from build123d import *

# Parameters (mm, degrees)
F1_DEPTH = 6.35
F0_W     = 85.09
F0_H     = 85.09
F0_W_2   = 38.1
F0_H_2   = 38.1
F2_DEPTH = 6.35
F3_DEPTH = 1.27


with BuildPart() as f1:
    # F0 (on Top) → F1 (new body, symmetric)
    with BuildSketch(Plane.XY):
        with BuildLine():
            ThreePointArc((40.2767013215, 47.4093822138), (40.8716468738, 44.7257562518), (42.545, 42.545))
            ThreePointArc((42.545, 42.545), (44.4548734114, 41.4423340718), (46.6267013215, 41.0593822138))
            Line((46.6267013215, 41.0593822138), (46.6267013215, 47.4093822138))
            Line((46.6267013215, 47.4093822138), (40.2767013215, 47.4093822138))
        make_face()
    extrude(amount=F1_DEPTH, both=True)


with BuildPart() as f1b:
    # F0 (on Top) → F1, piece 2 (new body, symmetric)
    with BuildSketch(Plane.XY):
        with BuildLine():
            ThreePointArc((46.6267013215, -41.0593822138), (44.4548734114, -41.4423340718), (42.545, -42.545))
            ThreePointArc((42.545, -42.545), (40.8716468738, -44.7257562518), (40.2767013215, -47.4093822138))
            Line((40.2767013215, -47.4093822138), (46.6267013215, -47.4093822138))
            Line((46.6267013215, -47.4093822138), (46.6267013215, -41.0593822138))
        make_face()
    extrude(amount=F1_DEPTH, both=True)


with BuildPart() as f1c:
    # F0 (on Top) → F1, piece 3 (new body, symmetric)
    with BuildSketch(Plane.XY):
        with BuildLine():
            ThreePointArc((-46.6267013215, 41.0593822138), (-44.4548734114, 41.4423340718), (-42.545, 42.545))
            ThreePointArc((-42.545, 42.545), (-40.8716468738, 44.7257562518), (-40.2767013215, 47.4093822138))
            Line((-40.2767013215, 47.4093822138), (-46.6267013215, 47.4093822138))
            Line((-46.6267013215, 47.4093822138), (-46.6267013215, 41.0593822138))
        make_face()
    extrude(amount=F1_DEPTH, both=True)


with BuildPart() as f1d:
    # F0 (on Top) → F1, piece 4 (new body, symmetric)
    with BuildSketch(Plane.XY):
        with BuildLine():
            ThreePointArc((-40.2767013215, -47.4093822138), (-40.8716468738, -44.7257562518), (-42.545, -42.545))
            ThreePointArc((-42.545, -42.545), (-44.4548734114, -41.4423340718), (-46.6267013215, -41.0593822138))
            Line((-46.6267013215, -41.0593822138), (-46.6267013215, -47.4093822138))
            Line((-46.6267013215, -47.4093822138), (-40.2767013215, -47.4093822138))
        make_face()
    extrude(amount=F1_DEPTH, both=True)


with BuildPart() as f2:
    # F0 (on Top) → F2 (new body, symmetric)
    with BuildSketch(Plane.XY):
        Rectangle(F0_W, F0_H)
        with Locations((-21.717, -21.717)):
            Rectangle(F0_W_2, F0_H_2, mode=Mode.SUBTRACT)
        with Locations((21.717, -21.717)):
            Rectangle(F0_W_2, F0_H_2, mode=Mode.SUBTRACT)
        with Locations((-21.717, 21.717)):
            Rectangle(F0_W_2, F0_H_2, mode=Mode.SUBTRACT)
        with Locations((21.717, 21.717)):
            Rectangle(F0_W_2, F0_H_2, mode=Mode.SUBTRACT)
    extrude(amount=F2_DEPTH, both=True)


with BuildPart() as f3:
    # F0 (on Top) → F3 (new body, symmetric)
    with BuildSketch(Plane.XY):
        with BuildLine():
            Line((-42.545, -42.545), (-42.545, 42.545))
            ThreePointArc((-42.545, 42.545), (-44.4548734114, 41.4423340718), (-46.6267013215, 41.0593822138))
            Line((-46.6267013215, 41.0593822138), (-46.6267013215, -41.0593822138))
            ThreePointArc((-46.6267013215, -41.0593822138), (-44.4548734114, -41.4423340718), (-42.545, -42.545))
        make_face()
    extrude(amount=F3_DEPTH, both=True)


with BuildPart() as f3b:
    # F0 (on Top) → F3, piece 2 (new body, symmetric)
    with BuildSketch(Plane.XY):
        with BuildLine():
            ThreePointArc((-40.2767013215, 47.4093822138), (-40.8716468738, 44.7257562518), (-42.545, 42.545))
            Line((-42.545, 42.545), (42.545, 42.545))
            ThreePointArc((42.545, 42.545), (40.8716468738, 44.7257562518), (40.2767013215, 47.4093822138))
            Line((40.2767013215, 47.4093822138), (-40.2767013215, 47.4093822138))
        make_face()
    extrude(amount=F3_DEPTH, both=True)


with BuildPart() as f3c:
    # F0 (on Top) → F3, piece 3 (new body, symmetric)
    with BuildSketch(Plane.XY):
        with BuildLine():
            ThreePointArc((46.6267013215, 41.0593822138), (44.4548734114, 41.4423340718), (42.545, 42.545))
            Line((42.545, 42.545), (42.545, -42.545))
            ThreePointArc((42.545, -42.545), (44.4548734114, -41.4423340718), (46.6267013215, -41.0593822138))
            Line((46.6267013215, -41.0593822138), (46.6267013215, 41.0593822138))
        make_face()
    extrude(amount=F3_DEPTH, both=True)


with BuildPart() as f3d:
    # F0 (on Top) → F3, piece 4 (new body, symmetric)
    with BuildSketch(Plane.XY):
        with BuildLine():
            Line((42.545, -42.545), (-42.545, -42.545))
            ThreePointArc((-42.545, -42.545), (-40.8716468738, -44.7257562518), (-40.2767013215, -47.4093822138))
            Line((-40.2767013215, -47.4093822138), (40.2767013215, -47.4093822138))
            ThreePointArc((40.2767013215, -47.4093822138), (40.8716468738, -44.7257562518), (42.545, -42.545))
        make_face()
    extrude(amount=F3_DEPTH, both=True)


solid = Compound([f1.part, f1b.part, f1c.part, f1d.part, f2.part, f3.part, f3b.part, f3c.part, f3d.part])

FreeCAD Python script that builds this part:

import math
import FreeCAD as App
import Part
import Sketcher
from FreeCAD import Vector
Q = App.Units.Quantity


def add_polygon(sketch, points):
    """Adds a closed chain of lines whose ends are joined by coincident constraints."""
    first, n = sketch.GeometryCount, len(points)
    for a, b in zip(points, points[1:] + points[:1]):
        sketch.addGeometry(Part.LineSegment(App.Vector(*a, 0), App.Vector(*b, 0)), False)
    for i in range(n):
        sketch.addConstraint(Sketcher.Constraint("Coincident", first + i, 2, first + (i + 1) % n, 1))

doc = App.newDocument("Part")
body = doc.addObject("PartDesign::Body", "Body")

sketch1 = doc.addObject("Sketcher::SketchObject", "Sketch")
body.addObject(sketch1)
sketch1.AttachmentSupport = (doc.XY_Plane, [""])
sketch1.MapMode = "FlatFace"
sketch1.addGeometry([
    Part.ArcOfCircle(Part.Circle(Vector(46.626701, 47.409382, 0), Vector(0, 0, 1), 6.35), math.radians(180), math.radians(230)),
    Part.ArcOfCircle(Part.Circle(Vector(46.626701, 47.409382, 0), Vector(0, 0, 1), 6.35), math.radians(-130), math.radians(-90)),
    Part.LineSegment(Vector(46.626701, 41.059382, 0), Vector(46.626701, 47.409382, 0)),
    Part.LineSegment(Vector(46.626701, 47.409382, 0), Vector(40.276701, 47.409382, 0)),
], False)
sketch1.addConstraint([
    Sketcher.Constraint("Tangent", 0, 2, 1, 1),
    Sketcher.Constraint("Coincident", 1, 2, 2, 1),
    Sketcher.Constraint("Coincident", 2, 2, 3, 1),
    Sketcher.Constraint("Coincident", 3, 2, 0, 1),
    Sketcher.Constraint("Vertical", 2),
    Sketcher.Constraint("Horizontal", 3),
    Sketcher.Constraint("Coincident", 2, 2, 0, 3),
    Sketcher.Constraint("Equal", 0, 1),
    Sketcher.Constraint("Radius", 0, Q("0.25 in")),
    Sketcher.Constraint("DistanceX", -1, 1, 0, 2, Q("1.675 in")),
    Sketcher.Constraint("DistanceY", -1, 1, 0, 2, Q("1.675 in")),
    Sketcher.Constraint("DistanceX", -1, 1, 0, 3, Q("46.626701 mm")),
])
pad1 = doc.addObject("PartDesign::Pad", "Pad")
body.addObject(pad1)
pad1.Profile = sketch1
pad1.Length = Q("0.5 in")
pad1.Midplane = True
body2 = doc.addObject("PartDesign::Body", "Body001")

sketch2 = doc.addObject("Sketcher::SketchObject", "Sketch001")
body2.addObject(sketch2)
sketch2.AttachmentSupport = (doc.getObject("XY_Plane001"), [""])
sketch2.MapMode = "FlatFace"
sketch2.addGeometry([
    Part.ArcOfCircle(Part.Circle(Vector(46.626701, -47.409382, 0), Vector(0, 0, 1), 6.35), math.radians(90), math.radians(130)),
    Part.ArcOfCircle(Part.Circle(Vector(46.626701, -47.409382, 0), Vector(0, 0, 1), 6.35), math.radians(130), math.radians(180)),
    Part.LineSegment(Vector(40.276701, -47.409382, 0), Vector(46.626701, -47.409382, 0)),
    Part.LineSegment(Vector(46.626701, -47.409382, 0), Vector(46.626701, -41.059382, 0)),
], False)
sketch2.addConstraint([
    Sketcher.Constraint("Tangent", 0, 2, 1, 1),
    Sketcher.Constraint("Coincident", 1, 2, 2, 1),
    Sketcher.Constraint("Coincident", 2, 2, 3, 1),
    Sketcher.Constraint("Coincident", 3, 2, 0, 1),
    Sketcher.Constraint("Horizontal", 2),
    Sketcher.Constraint("Vertical", 3),
    Sketcher.Constraint("Coincident", 2, 2, 0, 3),
    Sketcher.Constraint("Equal", 0, 1),
    Sketcher.Constraint("Radius", 0, Q("0.25 in")),
    Sketcher.Constraint("DistanceX", -1, 1, 0, 2, Q("1.675 in")),
    Sketcher.Constraint("DistanceY", 0, 2, -1, 1, Q("1.675 in")),
    Sketcher.Constraint("DistanceX", -1, 1, 0, 3, Q("46.626701 mm")),
])
pad2 = doc.addObject("PartDesign::Pad", "Pad001")
body2.addObject(pad2)
pad2.Profile = sketch2
pad2.Length = Q("0.5 in")
pad2.Midplane = True
body3 = doc.addObject("PartDesign::Body", "Body002")

sketch3 = doc.addObject("Sketcher::SketchObject", "Sketch002")
body3.addObject(sketch3)
sketch3.AttachmentSupport = (doc.getObject("XY_Plane002"), [""])
sketch3.MapMode = "FlatFace"
sketch3.addGeometry([
    Part.ArcOfCircle(Part.Circle(Vector(-46.626701, 47.409382, 0), Vector(0, 0, 1), 6.35), math.radians(-90), math.radians(-50)),
    Part.ArcOfCircle(Part.Circle(Vector(-46.626701, 47.409382, 0), Vector(0, 0, 1), 6.35), math.radians(-50), math.radians(0)),
    Part.LineSegment(Vector(-40.276701, 47.409382, 0), Vector(-46.626701, 47.409382, 0)),
    Part.LineSegment(Vector(-46.626701, 47.409382, 0), Vector(-46.626701, 41.059382, 0)),
], False)
sketch3.addConstraint([
    Sketcher.Constraint("Tangent", 0, 2, 1, 1),
    Sketcher.Constraint("Coincident", 1, 2, 2, 1),
    Sketcher.Constraint("Coincident", 2, 2, 3, 1),
    Sketcher.Constraint("Coincident", 3, 2, 0, 1),
    Sketcher.Constraint("Horizontal", 2),
    Sketcher.Constraint("Vertical", 3),
    Sketcher.Constraint("Coincident", 2, 2, 0, 3),
    Sketcher.Constraint("Equal", 0, 1),
    Sketcher.Constraint("Radius", 0, Q("0.25 in")),
    Sketcher.Constraint("DistanceX", 0, 2, -1, 1, Q("1.675 in")),
    Sketcher.Constraint("DistanceY", -1, 1, 0, 2, Q("1.675 in")),
    Sketcher.Constraint("DistanceX", 0, 3, -1, 1, Q("46.626701 mm")),
])
pad3 = doc.addObject("PartDesign::Pad", "Pad002")
body3.addObject(pad3)
pad3.Profile = sketch3
pad3.Length = Q("0.5 in")
pad3.Midplane = True
body4 = doc.addObject("PartDesign::Body", "Body003")

sketch4 = doc.addObject("Sketcher::SketchObject", "Sketch003")
body4.addObject(sketch4)
sketch4.AttachmentSupport = (doc.getObject("XY_Plane003"), [""])
sketch4.MapMode = "FlatFace"
sketch4.addGeometry([
    Part.ArcOfCircle(Part.Circle(Vector(-46.626701, -47.409382, 0), Vector(0, 0, 1), 6.35), math.radians(0), math.radians(50)),
    Part.ArcOfCircle(Part.Circle(Vector(-46.626701, -47.409382, 0), Vector(0, 0, 1), 6.35), math.radians(50), math.radians(90)),
    Part.LineSegment(Vector(-46.626701, -41.059382, 0), Vector(-46.626701, -47.409382, 0)),
    Part.LineSegment(Vector(-46.626701, -47.409382, 0), Vector(-40.276701, -47.409382, 0)),
], False)
sketch4.addConstraint([
    Sketcher.Constraint("Tangent", 0, 2, 1, 1),
    Sketcher.Constraint("Coincident", 1, 2, 2, 1),
    Sketcher.Constraint("Coincident", 2, 2, 3, 1),
    Sketcher.Constraint("Coincident", 3, 2, 0, 1),
    Sketcher.Constraint("Vertical", 2),
    Sketcher.Constraint("Horizontal", 3),
    Sketcher.Constraint("Coincident", 2, 2, 0, 3),
    Sketcher.Constraint("Equal", 0, 1),
    Sketcher.Constraint("Radius", 0, Q("0.25 in")),
    Sketcher.Constraint("DistanceX", 0, 2, -1, 1, Q("1.675 in")),
    Sketcher.Constraint("DistanceY", 0, 2, -1, 1, Q("1.675 in")),
    Sketcher.Constraint("DistanceX", 0, 3, -1, 1, Q("46.626701 mm")),
])
pad4 = doc.addObject("PartDesign::Pad", "Pad003")
body4.addObject(pad4)
pad4.Profile = sketch4
pad4.Length = Q("0.5 in")
pad4.Midplane = True
body5 = doc.addObject("PartDesign::Body", "Body004")

sketch5 = doc.addObject("Sketcher::SketchObject", "Sketch004")
body5.addObject(sketch5)
sketch5.AttachmentSupport = (doc.getObject("XY_Plane004"), [""])
sketch5.MapMode = "FlatFace"
add_polygon(sketch5, [(-42.545, 42.545), (-42.545, -42.545), (42.545, -42.545), (42.545, 42.545)])
add_polygon(sketch5, [(-2.667, -40.767), (-40.767, -40.767), (-40.767, -2.667), (-2.667, -2.667)])
add_polygon(sketch5, [(40.767, -40.767), (2.667, -40.767), (2.667, -2.667), (40.767, -2.667)])
add_polygon(sketch5, [(-2.667, 2.667), (-40.767, 2.667), (-40.767, 40.767), (-2.667, 40.767)])
add_polygon(sketch5, [(40.767, 2.667), (2.667, 2.667), (2.667, 40.767), (40.767, 40.767)])
sketch5.addConstraint([
    Sketcher.Constraint("Vertical", 0),
    Sketcher.Constraint("Horizontal", 1),
    Sketcher.Constraint("Vertical", 2),
    Sketcher.Constraint("Horizontal", 3),
    Sketcher.Constraint("Horizontal", 4),
    Sketcher.Constraint("Vertical", 5),
    Sketcher.Constraint("Horizontal", 6),
    Sketcher.Constraint("Vertical", 7),
    Sketcher.Constraint("Horizontal", 8),
    Sketcher.Constraint("Vertical", 9),
    Sketcher.Constraint("Horizontal", 10),
    Sketcher.Constraint("Vertical", 11),
    Sketcher.Constraint("Horizontal", 12),
    Sketcher.Constraint("Vertical", 13),
    Sketcher.Constraint("Horizontal", 14),
    Sketcher.Constraint("Vertical", 15),
    Sketcher.Constraint("Horizontal", 16),
    Sketcher.Constraint("Vertical", 17),
    Sketcher.Constraint("Horizontal", 18),
    Sketcher.Constraint("Vertical", 19),
    Sketcher.Constraint("Symmetric", 0, 2, 2, 2, -1, 1),
    Sketcher.Constraint("Symmetric", 10, 2, 12, 2, -1, 1),
    Sketcher.Constraint("Symmetric", 8, 2, 14, 2, -1, 1),
    Sketcher.Constraint("Symmetric", 6, 2, 16, 2, -1, 1),
    Sketcher.Constraint("Symmetric", 4, 2, 18, 2, -1, 1),
    Sketcher.Constraint("Symmetric", 7, 2, 8, 2, -2),
    Sketcher.Constraint("Symmetric", 5, 2, 10, 2, -2),
    Sketcher.Constraint("Equal", 3, 0),
    Sketcher.Constraint("Equal", 18, 5),
    Sketcher.Constraint("DistanceX", 4, 2, 4, 1, Q("1.5 in")),
    Sketcher.Constraint("DistanceX", 1, 1, 1, 2, Q("3.35 in")),
    Sketcher.Constraint("DistanceX", 0, 2, 4, 2, Q("0.07 in")),
    Sketcher.Constraint("DistanceY", 0, 2, 4, 2, Q("0.07 in")),
])
pad5 = doc.addObject("PartDesign::Pad", "Pad004")
body5.addObject(pad5)
pad5.Profile = sketch5
pad5.Length = Q("0.5 in")
pad5.Midplane = True
body6 = doc.addObject("PartDesign::Body", "Body005")

sketch6 = doc.addObject("Sketcher::SketchObject", "Sketch005")
body6.addObject(sketch6)
sketch6.AttachmentSupport = (doc.getObject("XY_Plane005"), [""])
sketch6.MapMode = "FlatFace"
sketch6.addGeometry([
    Part.LineSegment(Vector(-42.545, -42.545, 0), Vector(-42.545, 42.545, 0)),
    Part.ArcOfCircle(Part.Circle(Vector(-46.626701, 47.409382, 0), Vector(0, 0, 1), 6.35), math.radians(-90), math.radians(-50)),
    Part.LineSegment(Vector(-46.626701, 41.059382, 0), Vector(-46.626701, -41.059382, 0)),
    Part.ArcOfCircle(Part.Circle(Vector(-46.626701, -47.409382, 0), Vector(0, 0, 1), 6.35), math.radians(50), math.radians(90)),
], False)
sketch6.addConstraint([
    Sketcher.Constraint("Coincident", 0, 2, 1, 2),
    Sketcher.Constraint("Coincident", 1, 1, 2, 1),
    Sketcher.Constraint("Coincident", 2, 2, 3, 2),
    Sketcher.Constraint("Coincident", 3, 1, 0, 1),
    Sketcher.Constraint("Vertical", 0),
    Sketcher.Constraint("Vertical", 2),
    Sketcher.Constraint("Equal", 1, 3),
    Sketcher.Constraint("Symmetric", 1, 3, 3, 3, -1),
    Sketcher.Constraint("Vertical", 3, 3, 1, 1),
    Sketcher.Constraint("Radius", 1, Q("0.25 in")),
    Sketcher.Constraint("DistanceY", 0, 1, 0, 2, Q("3.35 in")),
    Sketcher.Constraint("DistanceX", 0, 2, -1, 1, Q("1.675 in")),
    Sketcher.Constraint("DistanceX", 1, 3, -1, 1, Q("46.626701 mm")),
])
pad6 = doc.addObject("PartDesign::Pad", "Pad005")
body6.addObject(pad6)
pad6.Profile = sketch6
pad6.Length = Q("0.1 in")
pad6.Midplane = True
body7 = doc.addObject("PartDesign::Body", "Body006")

sketch7 = doc.addObject("Sketcher::SketchObject", "Sketch006")
body7.addObject(sketch7)
sketch7.AttachmentSupport = (doc.getObject("XY_Plane006"), [""])
sketch7.MapMode = "FlatFace"
sketch7.addGeometry([
    Part.ArcOfCircle(Part.Circle(Vector(-46.626701, 47.409382, 0), Vector(0, 0, 1), 6.35), math.radians(-50), math.radians(0)),
    Part.LineSegment(Vector(-42.545, 42.545, 0), Vector(42.545, 42.545, 0)),
    Part.ArcOfCircle(Part.Circle(Vector(46.626701, 47.409382, 0), Vector(0, 0, 1), 6.35), math.radians(180), math.radians(230)),
    Part.LineSegment(Vector(40.276701, 47.409382, 0), Vector(-40.276701, 47.409382, 0)),
], False)
sketch7.addConstraint([
    Sketcher.Constraint("Coincident", 0, 1, 1, 1),
    Sketcher.Constraint("Coincident", 1, 2, 2, 2),
    Sketcher.Constraint("Coincident", 2, 1, 3, 1),
    Sketcher.Constraint("Coincident", 3, 2, 0, 2),
    Sketcher.Constraint("Horizontal", 1),
    Sketcher.Constraint("Horizontal", 3),
    Sketcher.Constraint("Equal", 0, 2),
    Sketcher.Constraint("Symmetric", 0, 3, 2, 3, -2),
    Sketcher.Constraint("Horizontal", 0, 3, 2, 1),
    Sketcher.Constraint("Radius", 0, Q("0.25 in")),
    Sketcher.Constraint("DistanceX", 1, 1, 1, 2, Q("3.35 in")),
    Sketcher.Constraint("DistanceY", -1, 1, 0, 1, Q("1.675 in")),
    Sketcher.Constraint("DistanceX", 0, 3, -1, 1, Q("46.626701 mm")),
])
pad7 = doc.addObject("PartDesign::Pad", "Pad006")
body7.addObject(pad7)
pad7.Profile = sketch7
pad7.Length = Q("0.1 in")
pad7.Midplane = True
body8 = doc.addObject("PartDesign::Body", "Body007")

sketch8 = doc.addObject("Sketcher::SketchObject", "Sketch007")
body8.addObject(sketch8)
sketch8.AttachmentSupport = (doc.getObject("XY_Plane007"), [""])
sketch8.MapMode = "FlatFace"
sketch8.addGeometry([
    Part.ArcOfCircle(Part.Circle(Vector(46.626701, 47.409382, 0), Vector(0, 0, 1), 6.35), math.radians(-130), math.radians(-90)),
    Part.LineSegment(Vector(42.545, 42.545, 0), Vector(42.545, -42.545, 0)),
    Part.ArcOfCircle(Part.Circle(Vector(46.626701, -47.409382, 0), Vector(0, 0, 1), 6.35), math.radians(90), math.radians(130)),
    Part.LineSegment(Vector(46.626701, -41.059382, 0), Vector(46.626701, 41.059382, 0)),
], False)
sketch8.addConstraint([
    Sketcher.Constraint("Coincident", 0, 1, 1, 1),
    Sketcher.Constraint("Coincident", 1, 2, 2, 2),
    Sketcher.Constraint("Coincident", 2, 1, 3, 1),
    Sketcher.Constraint("Coincident", 3, 2, 0, 2),
    Sketcher.Constraint("Vertical", 1),
    Sketcher.Constraint("Vertical", 3),
    Sketcher.Constraint("Equal", 0, 2),
    Sketcher.Constraint("Symmetric", 0, 3, 2, 3, -1),
    Sketcher.Constraint("Vertical", 0, 3, 2, 1),
    Sketcher.Constraint("Radius", 0, Q("0.25 in")),
    Sketcher.Constraint("DistanceY", 1, 2, 1, 1, Q("3.35 in")),
    Sketcher.Constraint("DistanceX", -1, 1, 0, 1, Q("1.675 in")),
    Sketcher.Constraint("DistanceX", -1, 1, 0, 3, Q("46.626701 mm")),
])
pad8 = doc.addObject("PartDesign::Pad", "Pad007")
body8.addObject(pad8)
pad8.Profile = sketch8
pad8.Length = Q("0.1 in")
pad8.Midplane = True
body9 = doc.addObject("PartDesign::Body", "Body008")

sketch9 = doc.addObject("Sketcher::SketchObject", "Sketch008")
body9.addObject(sketch9)
sketch9.AttachmentSupport = (doc.getObject("XY_Plane008"), [""])
sketch9.MapMode = "FlatFace"
sketch9.addGeometry([
    Part.LineSegment(Vector(42.545, -42.545, 0), Vector(-42.545, -42.545, 0)),
    Part.ArcOfCircle(Part.Circle(Vector(-46.626701, -47.409382, 0), Vector(0, 0, 1), 6.35), math.radians(0), math.radians(50)),
    Part.LineSegment(Vector(-40.276701, -47.409382, 0), Vector(40.276701, -47.409382, 0)),
    Part.ArcOfCircle(Part.Circle(Vector(46.626701, -47.409382, 0), Vector(0, 0, 1), 6.35), math.radians(130), math.radians(180)),
], False)
sketch9.addConstraint([
    Sketcher.Constraint("Coincident", 0, 2, 1, 2),
    Sketcher.Constraint("Coincident", 1, 1, 2, 1),
    Sketcher.Constraint("Coincident", 2, 2, 3, 2),
    Sketcher.Constraint("Coincident", 3, 1, 0, 1),
    Sketcher.Constraint("Horizontal", 0),
    Sketcher.Constraint("Horizontal", 2),
    Sketcher.Constraint("Equal", 1, 3),
    Sketcher.Constraint("Symmetric", 1, 3, 3, 3, -2),
    Sketcher.Constraint("Horizontal", 3, 3, 1, 1),
    Sketcher.Constraint("Radius", 1, Q("0.25 in")),
    Sketcher.Constraint("DistanceX", 0, 2, 0, 1, Q("3.35 in")),
    Sketcher.Constraint("DistanceY", 0, 2, -1, 1, Q("1.675 in")),
    Sketcher.Constraint("DistanceX", 1, 3, -1, 1, Q("46.626701 mm")),
])
pad9 = doc.addObject("PartDesign::Pad", "Pad008")
body9.addObject(pad9)
pad9.Profile = sketch9
pad9.Length = Q("0.1 in")
pad9.Midplane = True

doc.recompute()
